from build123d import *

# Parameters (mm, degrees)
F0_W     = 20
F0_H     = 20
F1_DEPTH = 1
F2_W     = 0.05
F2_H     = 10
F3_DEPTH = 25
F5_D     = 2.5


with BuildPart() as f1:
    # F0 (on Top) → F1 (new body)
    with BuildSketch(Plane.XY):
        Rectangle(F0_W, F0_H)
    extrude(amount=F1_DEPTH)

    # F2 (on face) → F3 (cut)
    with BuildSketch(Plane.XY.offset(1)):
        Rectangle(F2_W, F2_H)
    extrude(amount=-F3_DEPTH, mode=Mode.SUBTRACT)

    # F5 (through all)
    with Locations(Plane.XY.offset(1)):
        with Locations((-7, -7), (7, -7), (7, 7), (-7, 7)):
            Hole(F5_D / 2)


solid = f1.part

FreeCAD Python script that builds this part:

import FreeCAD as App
import Part
import Sketcher
from FreeCAD import Vector


def add_polygon(sketch, points):
    """Adds a closed chain of lines whose ends are joined by coincident constraints."""
    first, n = sketch.GeometryCount, len(points)
    for a, b in zip(points, points[1:] + points[:1]):
        sketch.addGeometry(Part.LineSegment(App.Vector(*a, 0), App.Vector(*b, 0)), False)
    for i in range(n):
        sketch.addConstraint(Sketcher.Constraint("Coincident", first + i, 2, first + (i + 1) % n, 1))

doc = App.newDocument("Part")
body = doc.addObject("PartDesign::Body", "Body")

sketch1 = body.newObject("Sketcher::SketchObject", "Sketch")
sketch1.AttachmentSupport = (doc.getObject("XY_Plane"), [""])
sketch1.MapMode = "FlatFace"
add_polygon(sketch1, [(-10, 10), (-10, -10), (10, -10), (10, 10)])
sketch1.addConstraint([
    Sketcher.Constraint("Vertical", 0),
    Sketcher.Constraint("Horizontal", 1),
    Sketcher.Constraint("Vertical", 2),
    Sketcher.Constraint("Horizontal", 3),
    Sketcher.Constraint("Symmetric", 0, 2, 2, 2, -1, 1),
    Sketcher.Constraint("Equal", 3, 0),
    Sketcher.Constraint("DistanceX", 1, 1, 1, 2, 20.0),
])
pad1 = body.newObject("PartDesign::Pad", "Pad")
pad1.Profile = sketch1
pad1.Length = 1

sketch2 = body.newObject("Sketcher::SketchObject", "Sketch001")
sketch2.AttachmentSupport = (doc.getObject("XY_Plane"), [""])
sketch2.MapMode = "FlatFace"
sketch2.AttachmentOffset = App.Placement(Vector(0, 0, 1), App.Rotation())
add_polygon(sketch2, [(-0.03, 5), (-0.03, -5), (0.03, -5), (0.03, 5)])
sketch2.addConstraint([
    Sketcher.Constraint("Vertical", 0),
    Sketcher.Constraint("Horizontal", 1),
    Sketcher.Constraint("Vertical", 2),
    Sketcher.Constraint("Horizontal", 3),
    Sketcher.Constraint("Symmetric", 0, 2, 2, 2, -1, 1),
    Sketcher.Constraint("DistanceY", 0, 2, 0, 1, 10.0),
    Sketcher.Constraint("DistanceX", 1, 1, 1, 2, 0.05),
])
pocket1 = body.newObject("PartDesign::Pocket", "Pocket")
pocket1.Profile = sketch2
pocket1.Length = 25

sketch3 = body.newObject("Sketcher::SketchObject", "Sketch002")
sketch3.AttachmentSupport = (doc.getObject("XY_Plane"), [""])
sketch3.MapMode = "FlatFace"
sketch3.AttachmentOffset = App.Placement(Vector(0, 0, 1), App.Rotation())
sketch3.addGeometry([
    Part.Circle(Vector(-7, -7, 0), Vector(0, 0, 1), 1.2),
    Part.Circle(Vector(7, -7, 0), Vector(0, 0, 1), 1.2),
    Part.Circle(Vector(7, 7, 0), Vector(0, 0, 1), 1.2),
    Part.Circle(Vector(-7, 7, 0), Vector(0, 0, 1), 1.2),
], False)
sketch3.addConstraint([
    Sketcher.Constraint("Equal", 0, 1),
    Sketcher.Constraint("Equal", 1, 2),
    Sketcher.Constraint("Equal", 2, 3),
    Sketcher.Constraint("Symmetric", 0, 3, 2, 3, -1, 1),
    Sketcher.Constraint("Symmetric", 1, 3, 3, 3, -1, 1),
    Sketcher.Constraint("Symmetric", 0, 3, 1, 3, -2),
    Sketcher.Constraint("Diameter", 0, 2.5),
    Sketcher.Constraint("DistanceX", 0, 3, -1, 1, 7.0),
    Sketcher.Constraint("DistanceY", 0, 3, -1, 1, 7.0),
])
doc.recompute()
hole = body.newObject("PartDesign::Hole", "Hole")
hole.Profile = sketch3
hole.ThreadType = "None"
hole.Diameter = 2.5
hole.DepthType = "ThroughAll"

doc.recompute()
